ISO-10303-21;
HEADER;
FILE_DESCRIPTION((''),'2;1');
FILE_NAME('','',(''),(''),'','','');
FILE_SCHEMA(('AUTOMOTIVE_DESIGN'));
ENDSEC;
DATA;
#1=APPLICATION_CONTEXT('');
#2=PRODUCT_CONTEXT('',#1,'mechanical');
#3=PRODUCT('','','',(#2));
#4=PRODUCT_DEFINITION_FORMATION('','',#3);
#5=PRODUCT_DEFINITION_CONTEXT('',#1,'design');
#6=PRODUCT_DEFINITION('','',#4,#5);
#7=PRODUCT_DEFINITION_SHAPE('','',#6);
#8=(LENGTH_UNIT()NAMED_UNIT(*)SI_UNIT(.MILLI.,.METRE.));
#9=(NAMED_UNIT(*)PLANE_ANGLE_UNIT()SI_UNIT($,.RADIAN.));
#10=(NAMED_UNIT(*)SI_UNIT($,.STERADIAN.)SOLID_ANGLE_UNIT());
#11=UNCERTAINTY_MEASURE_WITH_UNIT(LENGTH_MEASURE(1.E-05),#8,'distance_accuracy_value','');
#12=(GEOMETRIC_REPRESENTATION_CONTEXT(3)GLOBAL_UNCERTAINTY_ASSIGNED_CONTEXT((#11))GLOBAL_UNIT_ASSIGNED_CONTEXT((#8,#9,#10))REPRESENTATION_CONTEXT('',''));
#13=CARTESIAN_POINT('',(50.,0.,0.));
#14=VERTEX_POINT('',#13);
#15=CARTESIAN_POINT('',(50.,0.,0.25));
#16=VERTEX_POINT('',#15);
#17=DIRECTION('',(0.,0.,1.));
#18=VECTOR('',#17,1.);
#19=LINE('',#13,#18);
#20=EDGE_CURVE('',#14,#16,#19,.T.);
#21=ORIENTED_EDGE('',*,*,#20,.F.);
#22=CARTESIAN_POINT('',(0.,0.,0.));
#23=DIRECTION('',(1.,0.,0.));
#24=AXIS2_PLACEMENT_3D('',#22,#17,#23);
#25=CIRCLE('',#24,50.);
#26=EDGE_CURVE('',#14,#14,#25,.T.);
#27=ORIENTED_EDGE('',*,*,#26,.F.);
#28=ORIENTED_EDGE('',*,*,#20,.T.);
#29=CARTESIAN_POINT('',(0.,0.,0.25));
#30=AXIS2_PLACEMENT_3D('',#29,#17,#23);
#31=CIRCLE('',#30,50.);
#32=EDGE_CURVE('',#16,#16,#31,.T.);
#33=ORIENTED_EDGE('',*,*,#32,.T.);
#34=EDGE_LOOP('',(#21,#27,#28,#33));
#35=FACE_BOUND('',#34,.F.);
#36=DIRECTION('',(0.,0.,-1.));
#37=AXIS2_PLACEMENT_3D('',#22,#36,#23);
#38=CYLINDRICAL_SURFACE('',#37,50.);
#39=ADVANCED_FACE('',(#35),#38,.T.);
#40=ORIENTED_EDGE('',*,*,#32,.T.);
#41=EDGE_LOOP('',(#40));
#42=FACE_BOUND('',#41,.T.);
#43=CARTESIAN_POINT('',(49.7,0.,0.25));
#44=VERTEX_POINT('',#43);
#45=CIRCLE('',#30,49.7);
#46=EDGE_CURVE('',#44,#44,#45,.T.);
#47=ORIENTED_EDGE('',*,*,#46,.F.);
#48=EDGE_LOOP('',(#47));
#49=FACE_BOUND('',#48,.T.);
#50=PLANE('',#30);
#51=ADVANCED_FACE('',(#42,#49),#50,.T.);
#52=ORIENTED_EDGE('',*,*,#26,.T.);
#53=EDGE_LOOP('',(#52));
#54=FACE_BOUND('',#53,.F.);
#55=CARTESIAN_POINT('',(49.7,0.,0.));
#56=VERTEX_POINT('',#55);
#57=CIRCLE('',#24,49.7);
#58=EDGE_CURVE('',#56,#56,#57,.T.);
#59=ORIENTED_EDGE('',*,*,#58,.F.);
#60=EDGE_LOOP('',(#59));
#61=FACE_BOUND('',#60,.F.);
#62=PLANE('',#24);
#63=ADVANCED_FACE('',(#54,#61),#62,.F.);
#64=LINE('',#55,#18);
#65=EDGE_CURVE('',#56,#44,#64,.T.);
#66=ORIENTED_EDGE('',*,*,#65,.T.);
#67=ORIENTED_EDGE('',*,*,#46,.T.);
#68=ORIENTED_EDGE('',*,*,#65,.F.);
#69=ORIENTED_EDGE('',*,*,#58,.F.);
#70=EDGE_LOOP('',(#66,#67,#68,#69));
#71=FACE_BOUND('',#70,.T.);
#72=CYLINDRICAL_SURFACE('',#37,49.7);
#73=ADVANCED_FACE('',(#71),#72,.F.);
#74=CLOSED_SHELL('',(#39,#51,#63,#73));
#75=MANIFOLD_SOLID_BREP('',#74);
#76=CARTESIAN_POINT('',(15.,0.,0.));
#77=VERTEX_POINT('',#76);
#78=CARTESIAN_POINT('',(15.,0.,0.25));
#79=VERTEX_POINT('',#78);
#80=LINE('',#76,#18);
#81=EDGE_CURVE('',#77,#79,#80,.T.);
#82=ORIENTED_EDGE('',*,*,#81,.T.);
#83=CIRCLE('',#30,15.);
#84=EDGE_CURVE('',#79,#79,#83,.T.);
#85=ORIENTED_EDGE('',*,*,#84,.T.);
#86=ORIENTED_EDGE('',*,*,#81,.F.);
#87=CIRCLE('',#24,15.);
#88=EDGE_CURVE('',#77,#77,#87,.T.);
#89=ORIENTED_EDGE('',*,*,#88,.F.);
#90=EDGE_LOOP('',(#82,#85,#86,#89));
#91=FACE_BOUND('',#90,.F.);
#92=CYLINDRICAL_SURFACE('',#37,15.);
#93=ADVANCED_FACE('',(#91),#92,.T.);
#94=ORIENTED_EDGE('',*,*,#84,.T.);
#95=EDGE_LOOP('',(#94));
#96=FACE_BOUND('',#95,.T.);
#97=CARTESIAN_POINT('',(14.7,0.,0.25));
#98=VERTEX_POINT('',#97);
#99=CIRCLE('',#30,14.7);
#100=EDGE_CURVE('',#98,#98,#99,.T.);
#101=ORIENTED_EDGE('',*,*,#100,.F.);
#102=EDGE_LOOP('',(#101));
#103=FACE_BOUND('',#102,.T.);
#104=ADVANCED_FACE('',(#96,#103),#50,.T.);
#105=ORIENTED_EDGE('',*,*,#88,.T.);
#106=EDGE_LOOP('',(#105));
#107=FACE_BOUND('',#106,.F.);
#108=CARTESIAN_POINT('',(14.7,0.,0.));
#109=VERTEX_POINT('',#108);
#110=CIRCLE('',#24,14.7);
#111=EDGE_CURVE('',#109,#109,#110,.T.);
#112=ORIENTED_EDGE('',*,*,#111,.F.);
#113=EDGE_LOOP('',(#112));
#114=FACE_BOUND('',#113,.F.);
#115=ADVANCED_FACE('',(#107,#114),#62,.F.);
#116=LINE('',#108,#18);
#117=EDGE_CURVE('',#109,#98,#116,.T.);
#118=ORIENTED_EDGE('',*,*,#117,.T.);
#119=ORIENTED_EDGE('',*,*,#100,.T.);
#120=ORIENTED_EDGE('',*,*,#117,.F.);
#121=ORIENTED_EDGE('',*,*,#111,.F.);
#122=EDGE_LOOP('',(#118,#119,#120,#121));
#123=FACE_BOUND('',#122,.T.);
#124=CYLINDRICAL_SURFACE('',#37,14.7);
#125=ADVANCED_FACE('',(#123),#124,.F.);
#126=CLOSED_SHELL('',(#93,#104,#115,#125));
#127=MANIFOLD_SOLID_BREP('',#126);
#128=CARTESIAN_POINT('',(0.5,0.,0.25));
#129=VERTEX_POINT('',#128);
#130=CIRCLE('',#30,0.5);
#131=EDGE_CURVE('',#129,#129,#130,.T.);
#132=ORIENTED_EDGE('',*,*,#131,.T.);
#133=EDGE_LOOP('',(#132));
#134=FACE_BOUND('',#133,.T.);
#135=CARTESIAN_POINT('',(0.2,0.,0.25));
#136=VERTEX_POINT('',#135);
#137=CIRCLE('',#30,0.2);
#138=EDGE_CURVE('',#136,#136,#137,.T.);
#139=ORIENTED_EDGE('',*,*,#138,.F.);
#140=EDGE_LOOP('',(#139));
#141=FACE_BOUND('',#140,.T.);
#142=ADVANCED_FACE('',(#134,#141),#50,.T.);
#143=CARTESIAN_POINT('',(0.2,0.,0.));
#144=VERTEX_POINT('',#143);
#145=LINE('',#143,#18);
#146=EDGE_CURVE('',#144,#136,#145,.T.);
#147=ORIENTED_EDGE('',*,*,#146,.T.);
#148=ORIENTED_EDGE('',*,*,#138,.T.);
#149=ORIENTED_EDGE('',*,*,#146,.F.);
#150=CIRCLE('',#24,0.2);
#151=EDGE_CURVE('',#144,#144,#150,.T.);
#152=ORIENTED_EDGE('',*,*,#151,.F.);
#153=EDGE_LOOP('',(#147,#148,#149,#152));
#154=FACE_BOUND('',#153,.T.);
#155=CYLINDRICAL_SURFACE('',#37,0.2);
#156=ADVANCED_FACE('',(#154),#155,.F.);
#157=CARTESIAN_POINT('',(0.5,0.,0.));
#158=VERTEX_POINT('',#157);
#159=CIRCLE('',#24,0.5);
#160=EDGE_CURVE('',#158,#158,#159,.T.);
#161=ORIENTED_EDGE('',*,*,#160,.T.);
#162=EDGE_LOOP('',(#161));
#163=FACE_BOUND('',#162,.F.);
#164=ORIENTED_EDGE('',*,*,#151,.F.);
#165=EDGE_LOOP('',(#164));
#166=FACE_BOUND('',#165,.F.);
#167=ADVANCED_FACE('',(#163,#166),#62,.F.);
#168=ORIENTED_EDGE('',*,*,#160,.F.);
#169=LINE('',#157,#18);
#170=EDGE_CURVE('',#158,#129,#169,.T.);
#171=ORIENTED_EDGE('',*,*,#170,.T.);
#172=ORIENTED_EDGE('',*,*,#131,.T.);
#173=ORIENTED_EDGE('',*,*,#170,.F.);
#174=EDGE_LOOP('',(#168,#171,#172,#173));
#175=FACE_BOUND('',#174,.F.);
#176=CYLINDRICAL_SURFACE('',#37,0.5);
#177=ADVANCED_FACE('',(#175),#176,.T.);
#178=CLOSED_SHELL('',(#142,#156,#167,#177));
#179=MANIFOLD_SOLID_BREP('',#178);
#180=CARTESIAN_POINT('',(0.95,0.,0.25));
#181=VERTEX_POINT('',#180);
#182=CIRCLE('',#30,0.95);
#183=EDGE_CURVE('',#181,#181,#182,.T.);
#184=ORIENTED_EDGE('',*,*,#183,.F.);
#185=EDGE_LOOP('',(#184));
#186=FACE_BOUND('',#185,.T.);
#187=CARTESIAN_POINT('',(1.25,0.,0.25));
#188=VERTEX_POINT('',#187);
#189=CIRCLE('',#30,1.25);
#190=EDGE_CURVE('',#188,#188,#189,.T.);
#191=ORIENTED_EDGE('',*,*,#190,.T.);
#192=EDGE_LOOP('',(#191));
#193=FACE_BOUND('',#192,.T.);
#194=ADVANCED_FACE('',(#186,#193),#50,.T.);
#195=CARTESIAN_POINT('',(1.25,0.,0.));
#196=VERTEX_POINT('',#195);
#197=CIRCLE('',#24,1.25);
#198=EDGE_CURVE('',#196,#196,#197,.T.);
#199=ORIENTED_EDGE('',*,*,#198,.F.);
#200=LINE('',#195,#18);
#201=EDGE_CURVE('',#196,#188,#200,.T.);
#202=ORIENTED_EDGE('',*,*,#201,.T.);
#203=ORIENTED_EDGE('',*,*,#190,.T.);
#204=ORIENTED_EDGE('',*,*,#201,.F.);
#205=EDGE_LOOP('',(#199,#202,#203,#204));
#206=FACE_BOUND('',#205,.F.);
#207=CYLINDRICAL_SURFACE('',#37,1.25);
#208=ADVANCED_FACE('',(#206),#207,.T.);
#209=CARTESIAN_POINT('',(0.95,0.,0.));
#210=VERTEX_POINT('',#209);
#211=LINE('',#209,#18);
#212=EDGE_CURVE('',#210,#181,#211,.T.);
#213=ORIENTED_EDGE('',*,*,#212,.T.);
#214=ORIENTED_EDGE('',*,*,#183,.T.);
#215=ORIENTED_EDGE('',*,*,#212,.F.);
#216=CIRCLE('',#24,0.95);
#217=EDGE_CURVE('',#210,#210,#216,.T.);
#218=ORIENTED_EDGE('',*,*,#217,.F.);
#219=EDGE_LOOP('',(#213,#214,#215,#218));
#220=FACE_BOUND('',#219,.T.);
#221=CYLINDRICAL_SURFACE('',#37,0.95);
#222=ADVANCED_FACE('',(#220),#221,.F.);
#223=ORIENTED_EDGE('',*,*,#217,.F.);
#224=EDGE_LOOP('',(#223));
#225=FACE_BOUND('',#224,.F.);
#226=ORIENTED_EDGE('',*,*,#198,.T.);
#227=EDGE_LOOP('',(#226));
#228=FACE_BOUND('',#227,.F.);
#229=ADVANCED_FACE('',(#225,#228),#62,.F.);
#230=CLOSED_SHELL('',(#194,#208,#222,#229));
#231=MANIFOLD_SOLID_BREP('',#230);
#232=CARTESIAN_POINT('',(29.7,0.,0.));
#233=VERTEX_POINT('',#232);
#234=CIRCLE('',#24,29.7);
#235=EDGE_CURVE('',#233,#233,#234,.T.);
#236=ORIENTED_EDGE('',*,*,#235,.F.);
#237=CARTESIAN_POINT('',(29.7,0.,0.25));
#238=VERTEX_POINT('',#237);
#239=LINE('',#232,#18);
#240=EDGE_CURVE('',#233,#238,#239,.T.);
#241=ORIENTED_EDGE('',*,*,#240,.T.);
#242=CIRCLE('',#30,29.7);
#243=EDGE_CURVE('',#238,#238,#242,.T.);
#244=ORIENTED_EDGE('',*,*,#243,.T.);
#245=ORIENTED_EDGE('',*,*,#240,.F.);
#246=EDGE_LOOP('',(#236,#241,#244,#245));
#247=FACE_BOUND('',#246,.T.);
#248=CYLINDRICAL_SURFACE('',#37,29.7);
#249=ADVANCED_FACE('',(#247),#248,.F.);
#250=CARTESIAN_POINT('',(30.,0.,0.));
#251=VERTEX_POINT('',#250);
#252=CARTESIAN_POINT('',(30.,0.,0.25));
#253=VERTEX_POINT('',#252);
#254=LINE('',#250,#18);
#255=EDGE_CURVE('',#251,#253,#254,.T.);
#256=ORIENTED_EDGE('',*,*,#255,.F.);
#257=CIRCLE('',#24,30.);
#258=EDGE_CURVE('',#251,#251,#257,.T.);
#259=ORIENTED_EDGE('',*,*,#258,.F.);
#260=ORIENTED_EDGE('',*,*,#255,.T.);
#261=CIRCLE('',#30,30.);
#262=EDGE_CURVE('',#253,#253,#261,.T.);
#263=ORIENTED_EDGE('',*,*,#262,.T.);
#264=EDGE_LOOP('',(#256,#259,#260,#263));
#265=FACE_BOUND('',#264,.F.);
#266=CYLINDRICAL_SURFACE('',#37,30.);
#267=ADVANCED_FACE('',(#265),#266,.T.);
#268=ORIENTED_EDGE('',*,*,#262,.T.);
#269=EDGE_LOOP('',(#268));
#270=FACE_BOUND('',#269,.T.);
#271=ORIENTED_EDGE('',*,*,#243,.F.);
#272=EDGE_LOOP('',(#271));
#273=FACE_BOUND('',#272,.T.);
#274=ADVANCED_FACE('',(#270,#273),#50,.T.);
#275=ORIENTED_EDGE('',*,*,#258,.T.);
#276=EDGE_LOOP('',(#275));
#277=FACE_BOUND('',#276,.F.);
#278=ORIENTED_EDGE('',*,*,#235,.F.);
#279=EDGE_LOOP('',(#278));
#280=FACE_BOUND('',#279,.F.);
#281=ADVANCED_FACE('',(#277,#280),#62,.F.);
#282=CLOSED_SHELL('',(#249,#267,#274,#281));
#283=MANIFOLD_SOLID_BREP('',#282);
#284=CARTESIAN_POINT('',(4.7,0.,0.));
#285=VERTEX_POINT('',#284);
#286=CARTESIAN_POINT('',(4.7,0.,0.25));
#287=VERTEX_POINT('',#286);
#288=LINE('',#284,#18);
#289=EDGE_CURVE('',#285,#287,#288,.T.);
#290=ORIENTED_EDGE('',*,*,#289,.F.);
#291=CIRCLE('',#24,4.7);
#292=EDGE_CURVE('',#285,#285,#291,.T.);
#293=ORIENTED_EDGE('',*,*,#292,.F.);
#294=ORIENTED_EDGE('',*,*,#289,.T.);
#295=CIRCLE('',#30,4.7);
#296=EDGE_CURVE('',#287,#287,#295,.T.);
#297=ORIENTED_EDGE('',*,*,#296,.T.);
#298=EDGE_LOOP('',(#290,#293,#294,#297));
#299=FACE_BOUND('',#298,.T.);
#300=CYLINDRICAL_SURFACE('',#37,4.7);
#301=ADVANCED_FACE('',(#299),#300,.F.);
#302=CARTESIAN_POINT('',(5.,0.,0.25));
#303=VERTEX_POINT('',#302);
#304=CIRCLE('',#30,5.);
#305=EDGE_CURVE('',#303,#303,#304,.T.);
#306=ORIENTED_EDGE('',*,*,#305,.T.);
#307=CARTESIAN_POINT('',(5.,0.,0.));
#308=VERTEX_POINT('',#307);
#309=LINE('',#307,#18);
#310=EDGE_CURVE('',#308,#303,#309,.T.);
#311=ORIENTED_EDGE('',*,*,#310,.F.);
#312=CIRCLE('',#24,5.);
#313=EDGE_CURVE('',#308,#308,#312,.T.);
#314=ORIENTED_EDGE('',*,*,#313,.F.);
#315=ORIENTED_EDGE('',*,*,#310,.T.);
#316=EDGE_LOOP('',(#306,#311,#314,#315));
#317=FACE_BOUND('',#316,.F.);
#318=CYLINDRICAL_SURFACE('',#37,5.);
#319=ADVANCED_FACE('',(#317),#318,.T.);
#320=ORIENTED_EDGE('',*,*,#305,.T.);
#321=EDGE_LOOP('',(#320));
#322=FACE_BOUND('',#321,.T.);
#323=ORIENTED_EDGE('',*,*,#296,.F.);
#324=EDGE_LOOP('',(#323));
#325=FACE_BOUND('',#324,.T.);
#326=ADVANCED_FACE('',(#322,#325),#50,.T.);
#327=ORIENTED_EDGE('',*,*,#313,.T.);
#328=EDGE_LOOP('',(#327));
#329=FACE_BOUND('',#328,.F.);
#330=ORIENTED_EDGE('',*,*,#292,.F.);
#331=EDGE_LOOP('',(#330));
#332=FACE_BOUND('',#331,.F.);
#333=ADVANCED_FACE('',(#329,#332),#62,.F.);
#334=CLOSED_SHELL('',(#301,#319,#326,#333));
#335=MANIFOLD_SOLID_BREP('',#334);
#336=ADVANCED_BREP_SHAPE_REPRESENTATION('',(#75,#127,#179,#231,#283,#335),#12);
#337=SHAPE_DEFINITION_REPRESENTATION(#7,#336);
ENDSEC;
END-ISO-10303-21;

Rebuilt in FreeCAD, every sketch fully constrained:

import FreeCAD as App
import Part
import Sketcher
from FreeCAD import Vector
Q = App.Units.Quantity

doc = App.newDocument("Part")
body = doc.addObject("PartDesign::Body", "Body")

sketch1 = body.newObject("Sketcher::SketchObject", "Sketch")
sketch1.AttachmentSupport = (doc.getObject("XY_Plane"), [""])
sketch1.MapMode = "FlatFace"
sketch1.addGeometry([
    Part.Circle(Vector(0, 0, 0), Vector(0, 0, 1), 30),
    Part.Circle(Vector(0, 0, 0), Vector(0, 0, 1), 29.7),
], False)
sketch1.addConstraint([
    Sketcher.Constraint("Coincident", 0, 3, -1, 1),
    Sketcher.Constraint("Coincident", 1, 3, -1, 1),
    Sketcher.Constraint("Diameter", 0, Q("60 mm")),
    Sketcher.Constraint("Diameter", 1, Q("59.4 mm")),
])
pad1 = body.newObject("PartDesign::Pad", "Pad")
pad1.Profile = sketch1
pad1.Length = 0.25
body2 = doc.addObject("PartDesign::Body", "Body001")

sketch2 = body2.newObject("Sketcher::SketchObject", "Sketch001")
sketch2.AttachmentSupport = (doc.getObject("XY_Plane001"), [""])
sketch2.MapMode = "FlatFace"
sketch2.addGeometry([
    Part.Circle(Vector(0, 0, 0), Vector(0, 0, 1), 15),
    Part.Circle(Vector(0, 0, 0), Vector(0, 0, 1), 14.7),
], False)
sketch2.addConstraint([
    Sketcher.Constraint("Coincident", 0, 3, -1, 1),
    Sketcher.Constraint("Coincident", 1, 3, -1, 1),
    Sketcher.Constraint("Diameter", 0, Q("30 mm")),
    Sketcher.Constraint("Diameter", 1, Q("29.4 mm")),
])
pad2 = body2.newObject("PartDesign::Pad", "Pad001")
pad2.Profile = sketch2
pad2.Length = 0.25
body3 = doc.addObject("PartDesign::Body", "Body002")

sketch3 = body3.newObject("Sketcher::SketchObject", "Sketch002")
sketch3.AttachmentSupport = (doc.getObject("XY_Plane002"), [""])
sketch3.MapMode = "FlatFace"
sketch3.addGeometry([
    Part.Circle(Vector(0, 0, 0), Vector(0, 0, 1), 5),
    Part.Circle(Vector(0, 0, 0), Vector(0, 0, 1), 4.7),
], False)
sketch3.addConstraint([
    Sketcher.Constraint("Coincident", 0, 3, -1, 1),
    Sketcher.Constraint("Coincident", 1, 3, -1, 1),
    Sketcher.Constraint("Diameter", 0, Q("10 mm")),
    Sketcher.Constraint("Diameter", 1, Q("9.4 mm")),
])
pad3 = body3.newObject("PartDesign::Pad", "Pad002")
pad3.Profile = sketch3
pad3.Length = 0.25
body4 = doc.addObject("PartDesign::Body", "Body003")

sketch4 = body4.newObject("Sketcher::SketchObject", "Sketch003")
sketch4.AttachmentSupport = (doc.getObject("XY_Plane003"), [""])
sketch4.MapMode = "FlatFace"
sketch4.addGeometry([
    Part.Circle(Vector(0, 0, 0), Vector(0, 0, 1), 1.25),
    Part.Circle(Vector(0, 0, 0), Vector(0, 0, 1), 0.95),
], False)
sketch4.addConstraint([
    Sketcher.Constraint("Coincident", 0, 3, -1, 1),
    Sketcher.Constraint("Coincident", 1, 3, -1, 1),
    Sketcher.Constraint("Diameter", 0, Q("2.5 mm")),
    Sketcher.Constraint("Diameter", 1, Q("1.9 mm")),
])
pad4 = body4.newObject("PartDesign::Pad", "Pad003")
pad4.Profile = sketch4
pad4.Length = 0.25
body5 = doc.addObject("PartDesign::Body", "Body004")

sketch5 = body5.newObject("Sketcher::SketchObject", "Sketch004")
sketch5.AttachmentSupport = (doc.getObject("XY_Plane004"), [""])
sketch5.MapMode = "FlatFace"
sketch5.addGeometry([
    Part.Circle(Vector(0, 0, 0), Vector(0, 0, 1), 0.5),
    Part.Circle(Vector(0, 0, 0), Vector(0, 0, 1), 0.2),
], False)
sketch5.addConstraint([
    Sketcher.Constraint("Coincident", 0, 3, -1, 1),
    Sketcher.Constraint("Coincident", 1, 3, -1, 1),
    Sketcher.Constraint("Diameter", 0, Q("1 mm")),
    Sketcher.Constraint("Diameter", 1, Q("0.4 mm")),
])
pad5 = body5.newObject("PartDesign::Pad", "Pad004")
pad5.Profile = sketch5
pad5.Length = 0.25
body6 = doc.addObject("PartDesign::Body", "Body005")

sketch6 = body6.newObject("Sketcher::SketchObject", "Sketch005")
sketch6.AttachmentSupport = (doc.getObject("XY_Plane005"), [""])
sketch6.MapMode = "FlatFace"
sketch6.addGeometry([
    Part.Circle(Vector(0, 0, 0), Vector(0, 0, 1), 50),
    Part.Circle(Vector(0, 0, 0), Vector(0, 0, 1), 49.7),
], False)
sketch6.addConstraint([
    Sketcher.Constraint("Coincident", 0, 3, -1, 1),
    Sketcher.Constraint("Coincident", 1, 3, -1, 1),
    Sketcher.Constraint("Diameter", 0, Q("100 mm")),
    Sketcher.Constraint("Diameter", 1, Q("99.4 mm")),
])
pad6 = body6.newObject("PartDesign::Pad", "Pad005")
pad6.Profile = sketch6
pad6.Length = 0.25

doc.recompute()
